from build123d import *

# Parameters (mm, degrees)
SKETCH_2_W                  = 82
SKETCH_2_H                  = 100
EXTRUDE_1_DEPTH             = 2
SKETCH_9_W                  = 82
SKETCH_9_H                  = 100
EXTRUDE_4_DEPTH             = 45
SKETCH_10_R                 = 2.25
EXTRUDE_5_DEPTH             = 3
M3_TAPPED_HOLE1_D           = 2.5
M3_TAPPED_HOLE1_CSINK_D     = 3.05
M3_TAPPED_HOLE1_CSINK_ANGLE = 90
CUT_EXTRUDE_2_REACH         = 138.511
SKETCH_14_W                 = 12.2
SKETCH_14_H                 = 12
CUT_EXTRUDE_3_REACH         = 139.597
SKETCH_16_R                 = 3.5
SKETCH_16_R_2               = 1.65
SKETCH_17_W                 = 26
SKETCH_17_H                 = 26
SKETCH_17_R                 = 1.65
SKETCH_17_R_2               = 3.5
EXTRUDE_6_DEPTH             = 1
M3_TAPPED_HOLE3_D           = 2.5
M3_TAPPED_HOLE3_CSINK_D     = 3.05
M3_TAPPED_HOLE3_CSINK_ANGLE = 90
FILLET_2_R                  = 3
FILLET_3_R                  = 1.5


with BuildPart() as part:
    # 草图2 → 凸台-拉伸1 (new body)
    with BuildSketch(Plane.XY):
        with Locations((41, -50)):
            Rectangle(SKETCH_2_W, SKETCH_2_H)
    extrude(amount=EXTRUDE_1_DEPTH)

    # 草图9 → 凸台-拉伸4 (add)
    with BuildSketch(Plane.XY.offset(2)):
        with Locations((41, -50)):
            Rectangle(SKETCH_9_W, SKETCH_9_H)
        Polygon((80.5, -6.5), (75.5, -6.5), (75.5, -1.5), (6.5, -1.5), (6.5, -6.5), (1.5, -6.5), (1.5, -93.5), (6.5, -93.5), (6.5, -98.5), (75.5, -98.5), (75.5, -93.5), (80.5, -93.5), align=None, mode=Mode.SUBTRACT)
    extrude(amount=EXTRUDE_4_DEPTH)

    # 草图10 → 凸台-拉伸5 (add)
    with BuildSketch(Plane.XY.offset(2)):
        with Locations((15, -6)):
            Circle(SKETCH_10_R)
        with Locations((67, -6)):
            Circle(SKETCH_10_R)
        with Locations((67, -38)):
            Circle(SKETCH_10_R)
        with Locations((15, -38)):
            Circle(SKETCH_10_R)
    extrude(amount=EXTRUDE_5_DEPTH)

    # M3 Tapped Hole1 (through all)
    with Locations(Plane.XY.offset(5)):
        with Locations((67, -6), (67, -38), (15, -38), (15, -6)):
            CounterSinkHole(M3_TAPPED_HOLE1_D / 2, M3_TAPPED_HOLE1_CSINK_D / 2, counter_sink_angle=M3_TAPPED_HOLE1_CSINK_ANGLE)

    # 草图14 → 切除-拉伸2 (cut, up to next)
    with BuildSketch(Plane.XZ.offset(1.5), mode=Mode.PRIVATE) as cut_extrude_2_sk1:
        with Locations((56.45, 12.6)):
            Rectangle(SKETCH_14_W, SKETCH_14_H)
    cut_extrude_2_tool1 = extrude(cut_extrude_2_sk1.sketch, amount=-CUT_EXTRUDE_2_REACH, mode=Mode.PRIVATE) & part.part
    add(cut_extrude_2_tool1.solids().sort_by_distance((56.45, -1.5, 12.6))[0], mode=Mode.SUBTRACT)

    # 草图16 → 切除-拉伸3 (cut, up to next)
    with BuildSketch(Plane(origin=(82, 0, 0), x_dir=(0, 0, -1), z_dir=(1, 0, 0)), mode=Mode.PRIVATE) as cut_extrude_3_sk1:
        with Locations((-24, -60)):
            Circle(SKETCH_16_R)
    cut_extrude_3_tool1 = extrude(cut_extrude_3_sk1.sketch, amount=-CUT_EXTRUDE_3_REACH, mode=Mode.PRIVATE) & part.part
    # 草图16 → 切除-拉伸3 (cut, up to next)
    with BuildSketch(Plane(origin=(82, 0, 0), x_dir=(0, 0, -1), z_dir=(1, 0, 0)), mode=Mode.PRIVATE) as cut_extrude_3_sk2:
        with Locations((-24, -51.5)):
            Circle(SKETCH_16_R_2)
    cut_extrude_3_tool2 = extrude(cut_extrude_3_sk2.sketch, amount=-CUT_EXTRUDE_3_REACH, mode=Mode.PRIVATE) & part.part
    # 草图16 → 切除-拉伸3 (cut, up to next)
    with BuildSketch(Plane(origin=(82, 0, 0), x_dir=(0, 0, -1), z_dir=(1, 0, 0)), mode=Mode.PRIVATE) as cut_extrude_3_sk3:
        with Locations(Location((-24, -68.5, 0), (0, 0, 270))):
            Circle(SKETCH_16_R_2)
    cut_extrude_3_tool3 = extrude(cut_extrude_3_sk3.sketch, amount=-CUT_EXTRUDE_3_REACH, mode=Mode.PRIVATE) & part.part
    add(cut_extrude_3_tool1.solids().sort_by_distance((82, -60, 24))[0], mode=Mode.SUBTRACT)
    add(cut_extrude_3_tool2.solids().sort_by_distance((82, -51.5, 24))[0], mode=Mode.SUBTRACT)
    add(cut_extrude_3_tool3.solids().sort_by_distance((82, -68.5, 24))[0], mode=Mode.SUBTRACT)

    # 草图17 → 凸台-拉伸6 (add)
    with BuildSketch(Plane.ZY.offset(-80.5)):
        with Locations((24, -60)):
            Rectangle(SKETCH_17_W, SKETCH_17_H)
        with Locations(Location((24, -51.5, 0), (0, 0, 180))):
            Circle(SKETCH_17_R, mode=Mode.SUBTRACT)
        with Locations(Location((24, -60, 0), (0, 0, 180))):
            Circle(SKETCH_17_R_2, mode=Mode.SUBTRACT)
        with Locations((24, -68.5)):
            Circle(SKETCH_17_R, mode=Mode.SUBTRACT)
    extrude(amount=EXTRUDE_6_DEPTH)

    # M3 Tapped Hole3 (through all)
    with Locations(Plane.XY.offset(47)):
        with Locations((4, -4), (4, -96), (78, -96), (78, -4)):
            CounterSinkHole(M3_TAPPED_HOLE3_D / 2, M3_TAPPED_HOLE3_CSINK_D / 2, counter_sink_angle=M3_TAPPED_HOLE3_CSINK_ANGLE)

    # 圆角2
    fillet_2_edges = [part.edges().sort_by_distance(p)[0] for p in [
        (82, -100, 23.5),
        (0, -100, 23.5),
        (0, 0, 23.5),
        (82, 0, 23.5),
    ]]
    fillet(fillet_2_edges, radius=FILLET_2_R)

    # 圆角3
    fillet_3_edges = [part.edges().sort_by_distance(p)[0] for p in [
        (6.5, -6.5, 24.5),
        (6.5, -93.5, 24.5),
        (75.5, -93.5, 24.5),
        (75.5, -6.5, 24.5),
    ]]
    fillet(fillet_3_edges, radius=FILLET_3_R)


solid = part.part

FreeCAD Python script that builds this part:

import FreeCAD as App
import Part
import Sketcher


def edges_at(feature, points):
    """Names of the edges that pass closest to the given points."""
    edges = feature.Shape.Edges
    near = lambda p: min(range(len(edges)), key=lambda i: edges[i].distToShape(Part.Vertex(*p))[0])
    return sorted({f"Edge{near(p) + 1}" for p in points})

doc = App.newDocument("Part")
body = doc.addObject("PartDesign::Body", "Body")

sketch1 = doc.addObject("Sketcher::SketchObject", "Sketch")
body.addObject(sketch1)
sketch1.AttachmentSupport = (doc.XY_Plane, [""])
sketch1.MapMode = "FlatFace"
sketch1.addGeometry(Part.LineSegment(App.Vector(0, 0, 0), App.Vector(0, -100, 0)), False)
sketch1.addGeometry(Part.LineSegment(App.Vector(0, -100, 0), App.Vector(82, -100, 0)), False)
sketch1.addGeometry(Part.LineSegment(App.Vector(82, -100, 0), App.Vector(82, 0, 0)), False)
sketch1.addGeometry(Part.LineSegment(App.Vector(82, 0, 0), App.Vector(0, 0, 0)), False)
sketch1.addConstraint(Sketcher.Constraint("Coincident", 0, 2, 1, 1))
sketch1.addConstraint(Sketcher.Constraint("Coincident", 1, 2, 2, 1))
sketch1.addConstraint(Sketcher.Constraint("Coincident", 2, 2, 3, 1))
sketch1.addConstraint(Sketcher.Constraint("Coincident", 3, 2, 0, 1))
sketch1.addConstraint(Sketcher.Constraint("Vertical", 0))
sketch1.addConstraint(Sketcher.Constraint("Horizontal", 1))
sketch1.addConstraint(Sketcher.Constraint("Vertical", 2))
sketch1.addConstraint(Sketcher.Constraint("Horizontal", 3))
sketch1.addConstraint(Sketcher.Constraint("Coincident", 3, 2, -1, 1))
sketch1.addConstraint(Sketcher.Constraint("DistanceX", 1, 1, 1, 2, 82.0))
sketch1.addConstraint(Sketcher.Constraint("DistanceY", 0, 2, 0, 1, 100.0))
pad1 = doc.addObject("PartDesign::Pad", "Pad")
body.addObject(pad1)
pad1.Profile = sketch1
pad1.Length = 2

sketch2 = doc.addObject("Sketcher::SketchObject", "Sketch001")
body.addObject(sketch2)
sketch2.AttachmentSupport = (doc.XY_Plane, [""])
sketch2.MapMode = "FlatFace"
sketch2.AttachmentOffset = App.Placement(App.Vector(0, 0, 2), App.Rotation())
sketch2.addGeometry(Part.LineSegment(App.Vector(0, 0, 0), App.Vector(0, -100, 0)), False)
sketch2.addGeometry(Part.LineSegment(App.Vector(0, -100, 0), App.Vector(82, -100, 0)), False)
sketch2.addGeometry(Part.LineSegment(App.Vector(82, -100, 0), App.Vector(82, 0, 0)), False)
sketch2.addGeometry(Part.LineSegment(App.Vector(82, 0, 0), App.Vector(0, 0, 0)), False)
sketch2.addGeometry(Part.LineSegment(App.Vector(75.5, -6.5, 0), App.Vector(80.5, -6.5, 0)), False)
sketch2.addGeometry(Part.LineSegment(App.Vector(80.5, -6.5, 0), App.Vector(80.5, -93.5, 0)), False)
sketch2.addGeometry(Part.LineSegment(App.Vector(80.5, -93.5, 0), App.Vector(75.5, -93.5, 0)), False)
sketch2.addGeometry(Part.LineSegment(App.Vector(75.5, -93.5, 0), App.Vector(75.5, -98.5, 0)), False)
sketch2.addGeometry(Part.LineSegment(App.Vector(75.5, -98.5, 0), App.Vector(6.5, -98.5, 0)), False)
sketch2.addGeometry(Part.LineSegment(App.Vector(6.5, -98.5, 0), App.Vector(6.5, -93.5, 0)), False)
sketch2.addGeometry(Part.LineSegment(App.Vector(6.5, -93.5, 0), App.Vector(1.5, -93.5, 0)), False)
sketch2.addGeometry(Part.LineSegment(App.Vector(1.5, -93.5, 0), App.Vector(1.5, -6.5, 0)), False)
sketch2.addGeometry(Part.LineSegment(App.Vector(1.5, -6.5, 0), App.Vector(6.5, -6.5, 0)), False)
sketch2.addGeometry(Part.LineSegment(App.Vector(6.5, -6.5, 0), App.Vector(6.5, -1.5, 0)), False)
sketch2.addGeometry(Part.LineSegment(App.Vector(6.5, -1.5, 0), App.Vector(75.5, -1.5, 0)), False)
sketch2.addGeometry(Part.LineSegment(App.Vector(75.5, -1.5, 0), App.Vector(75.5, -6.5, 0)), False)
sketch2.addConstraint(Sketcher.Constraint("Coincident", 0, 2, 1, 1))
sketch2.addConstraint(Sketcher.Constraint("Coincident", 1, 2, 2, 1))
sketch2.addConstraint(Sketcher.Constraint("Coincident", 2, 2, 3, 1))
sketch2.addConstraint(Sketcher.Constraint("Coincident", 3, 2, 0, 1))
sketch2.addConstraint(Sketcher.Constraint("Coincident", 4, 2, 5, 1))
sketch2.addConstraint(Sketcher.Constraint("Coincident", 5, 2, 6, 1))
sketch2.addConstraint(Sketcher.Constraint("Coincident", 6, 2, 7, 1))
sketch2.addConstraint(Sketcher.Constraint("Coincident", 7, 2, 8, 1))
sketch2.addConstraint(Sketcher.Constraint("Coincident", 8, 2, 9, 1))
sketch2.addConstraint(Sketcher.Constraint("Coincident", 9, 2, 10, 1))
sketch2.addConstraint(Sketcher.Constraint("Coincident", 10, 2, 11, 1))
sketch2.addConstraint(Sketcher.Constraint("Coincident", 11, 2, 12, 1))
sketch2.addConstraint(Sketcher.Constraint("Coincident", 12, 2, 13, 1))
sketch2.addConstraint(Sketcher.Constraint("Coincident", 13, 2, 14, 1))
sketch2.addConstraint(Sketcher.Constraint("Coincident", 14, 2, 15, 1))
sketch2.addConstraint(Sketcher.Constraint("Coincident", 15, 2, 4, 1))
sketch2.addConstraint(Sketcher.Constraint("Vertical", 0))
sketch2.addConstraint(Sketcher.Constraint("Horizontal", 1))
sketch2.addConstraint(Sketcher.Constraint("Vertical", 2))
sketch2.addConstraint(Sketcher.Constraint("Horizontal", 3))
sketch2.addConstraint(Sketcher.Constraint("Horizontal", 4))
sketch2.addConstraint(Sketcher.Constraint("Vertical", 5))
sketch2.addConstraint(Sketcher.Constraint("Horizontal", 6))
sketch2.addConstraint(Sketcher.Constraint("Vertical", 7))
sketch2.addConstraint(Sketcher.Constraint("Horizontal", 8))
sketch2.addConstraint(Sketcher.Constraint("Vertical", 9))
sketch2.addConstraint(Sketcher.Constraint("Horizontal", 10))
sketch2.addConstraint(Sketcher.Constraint("Vertical", 11))
sketch2.addConstraint(Sketcher.Constraint("Horizontal", 12))
sketch2.addConstraint(Sketcher.Constraint("Vertical", 13))
sketch2.addConstraint(Sketcher.Constraint("Horizontal", 14))
sketch2.addConstraint(Sketcher.Constraint("Vertical", 15))
sketch2.addConstraint(Sketcher.Constraint("Coincident", 3, 2, -1, 1))
sketch2.addConstraint(Sketcher.Constraint("Horizontal", 6, 2, 9, 2))
sketch2.addConstraint(Sketcher.Constraint("Horizontal", 4, 2, 11, 2))
sketch2.addConstraint(Sketcher.Constraint("Vertical", 9, 2, 12, 2))
sketch2.addConstraint(Sketcher.Constraint("Vertical", 7, 2, 14, 2))
sketch2.addConstraint(Sketcher.Constraint("Equal", 6, 10))
sketch2.addConstraint(Sketcher.Constraint("Equal", 12, 7))
sketch2.addConstraint(Sketcher.Constraint("Equal", 9, 13))
sketch2.addConstraint(Sketcher.Constraint("DistanceX", 1, 1, 1, 2, 82.0))
sketch2.addConstraint(Sketcher.Constraint("DistanceX", 4, 1, 4, 2, 5.0))
sketch2.addConstraint(Sketcher.Constraint("DistanceX", 8, 2, 8, 1, 69.0))
sketch2.addConstraint(Sketcher.Constraint("DistanceY", 0, 2, 0, 1, 100.0))
sketch2.addConstraint(Sketcher.Constraint("DistanceY", 5, 2, 5, 1, 87.0))
sketch2.addConstraint(Sketcher.Constraint("DistanceX", -1, 1, 4, 2, 80.5))
sketch2.addConstraint(Sketcher.Constraint("DistanceY", 4, 2, -1, 1, 6.5))
pad2 = doc.addObject("PartDesign::Pad", "Pad001")
body.addObject(pad2)
pad2.Profile = sketch2
pad2.Length = 45

sketch3 = doc.addObject("Sketcher::SketchObject", "Sketch002")
body.addObject(sketch3)
sketch3.AttachmentSupport = (doc.XY_Plane, [""])
sketch3.MapMode = "FlatFace"
sketch3.AttachmentOffset = App.Placement(App.Vector(0, 0, 2), App.Rotation())
sketch3.addGeometry(Part.Circle(App.Vector(15, -6, 0), App.Vector(0, 0, 1), 2.25), False)
sketch3.addGeometry(Part.Circle(App.Vector(67, -6, 0), App.Vector(0, 0, 1), 2.25), False)
sketch3.addGeometry(Part.Circle(App.Vector(67, -38, 0), App.Vector(0, 0, 1), 2.25), False)
sketch3.addGeometry(Part.Circle(App.Vector(15, -38, 0), App.Vector(0, 0, 1), 2.25), False)
sketch3.addConstraint(Sketcher.Constraint("Equal", 0, 1))
sketch3.addConstraint(Sketcher.Constraint("Equal", 1, 2))
sketch3.addConstraint(Sketcher.Constraint("Equal", 2, 3))
sketch3.addConstraint(Sketcher.Constraint("Horizontal", 0, 3, 1, 3))
sketch3.addConstraint(Sketcher.Constraint("Horizontal", 2, 3, 3, 3))
sketch3.addConstraint(Sketcher.Constraint("Vertical", 1, 3, 2, 3))
sketch3.addConstraint(Sketcher.Constraint("Vertical", 0, 3, 3, 3))
sketch3.addConstraint(Sketcher.Constraint("Diameter", 0, 4.5))
sketch3.addConstraint(Sketcher.Constraint("DistanceX", -1, 1, 0, 3, 15.0))
sketch3.addConstraint(Sketcher.Constraint("DistanceY", 0, 3, -1, 1, 6.0))
sketch3.addConstraint(Sketcher.Constraint("DistanceX", -1, 1, 1, 3, 67.0))
sketch3.addConstraint(Sketcher.Constraint("DistanceY", 2, 3, -1, 1, 38.0))
pad3 = doc.addObject("PartDesign::Pad", "Pad002")
body.addObject(pad3)
pad3.Profile = sketch3
pad3.Length = 3

sketch4 = doc.addObject("Sketcher::SketchObject", "Sketch003")
body.addObject(sketch4)
sketch4.AttachmentSupport = (doc.XY_Plane, [""])
sketch4.MapMode = "FlatFace"
sketch4.AttachmentOffset = App.Placement(App.Vector(0, 0, 5), App.Rotation())
sketch4.addGeometry(Part.Circle(App.Vector(67, -6, 0), App.Vector(0, 0, 1), 1.25), False)
sketch4.addGeometry(Part.Circle(App.Vector(67, -38, 0), App.Vector(0, 0, 1), 1.25), False)
sketch4.addGeometry(Part.Circle(App.Vector(15, -38, 0), App.Vector(0, 0, 1), 1.25), False)
sketch4.addGeometry(Part.Circle(App.Vector(15, -6, 0), App.Vector(0, 0, 1), 1.25), False)
sketch4.addConstraint(Sketcher.Constraint("Equal", 0, 1))
sketch4.addConstraint(Sketcher.Constraint("Equal", 1, 2))
sketch4.addConstraint(Sketcher.Constraint("Equal", 2, 3))
sketch4.addConstraint(Sketcher.Constraint("Horizontal", 1, 3, 2, 3))
sketch4.addConstraint(Sketcher.Constraint("Horizontal", 0, 3, 3, 3))
sketch4.addConstraint(Sketcher.Constraint("Vertical", 0, 3, 1, 3))
sketch4.addConstraint(Sketcher.Constraint("Vertical", 2, 3, 3, 3))
sketch4.addConstraint(Sketcher.Constraint("Diameter", 0, 2.5))
sketch4.addConstraint(Sketcher.Constraint("DistanceX", -1, 1, 0, 3, 67.0))
sketch4.addConstraint(Sketcher.Constraint("DistanceY", 0, 3, -1, 1, 6.0))
sketch4.addConstraint(Sketcher.Constraint("DistanceY", 1, 3, -1, 1, 38.0))
sketch4.addConstraint(Sketcher.Constraint("DistanceX", -1, 1, 2, 3, 15.0))
doc.recompute()
hole = doc.addObject("PartDesign::Hole", "Hole")
body.addObject(hole)
hole.Profile = sketch4
hole.ThreadType = "None"
hole.Diameter = 2.5
hole.DepthType = "ThroughAll"
hole.HoleCutType = "Countersink"
hole.HoleCutDiameter = 3.05
hole.HoleCutCountersinkAngle = 90

sketch5 = doc.addObject("Sketcher::SketchObject", "Sketch004")
body.addObject(sketch5)
sketch5.AttachmentSupport = (doc.XZ_Plane, [""])
sketch5.MapMode = "FlatFace"
sketch5.AttachmentOffset = App.Placement(App.Vector(0, 0, 1.5), App.Rotation())
sketch5.addGeometry(Part.LineSegment(App.Vector(50.35, 18.6, 0), App.Vector(50.35, 6.6, 0)), False)
sketch5.addGeometry(Part.LineSegment(App.Vector(50.35, 6.6, 0), App.Vector(62.55, 6.6, 0)), False)
sketch5.addGeometry(Part.LineSegment(App.Vector(62.55, 6.6, 0), App.Vector(62.55, 18.6, 0)), False)
sketch5.addGeometry(Part.LineSegment(App.Vector(62.55, 18.6, 0), App.Vector(50.35, 18.6, 0)), False)
sketch5.addConstraint(Sketcher.Constraint("Coincident", 0, 2, 1, 1))
sketch5.addConstraint(Sketcher.Constraint("Coincident", 1, 2, 2, 1))
sketch5.addConstraint(Sketcher.Constraint("Coincident", 2, 2, 3, 1))
sketch5.addConstraint(Sketcher.Constraint("Coincident", 3, 2, 0, 1))
sketch5.addConstraint(Sketcher.Constraint("Vertical", 0))
sketch5.addConstraint(Sketcher.Constraint("Horizontal", 1))
sketch5.addConstraint(Sketcher.Constraint("Vertical", 2))
sketch5.addConstraint(Sketcher.Constraint("Horizontal", 3))
sketch5.addConstraint(Sketcher.Constraint("DistanceY", 0, 2, 0, 1, 12.0))
sketch5.addConstraint(Sketcher.Constraint("DistanceX", 1, 1, 1, 2, 12.2))
sketch5.addConstraint(Sketcher.Constraint("DistanceY", -1, 1, 0, 2, 6.6))
sketch5.addConstraint(Sketcher.Constraint("DistanceX", -1, 1, 0, 2, 50.35))
pocket1 = doc.addObject("PartDesign::Pocket", "Pocket")
body.addObject(pocket1)
pocket1.Profile = sketch5
pocket1.Type = "UpToFirst"

sketch6 = doc.addObject("Sketcher::SketchObject", "Sketch005")
body.addObject(sketch6)
sketch6.AttachmentSupport = (doc.YZ_Plane, [""])
sketch6.MapMode = "FlatFace"
sketch6.AttachmentOffset = App.Placement(App.Vector(0, 0, 82), App.Rotation())
sketch6.addGeometry(Part.Circle(App.Vector(-60, 24, 0), App.Vector(0, 0, 1), 3.5), False)
sketch6.addConstraint(Sketcher.Constraint("Diameter", 0, 7.0))
sketch6.addConstraint(Sketcher.Constraint("DistanceX", 0, 3, -1, 1, 60.0))
sketch6.addConstraint(Sketcher.Constraint("DistanceY", -1, 1, 0, 3, 24.0))
pocket2 = doc.addObject("PartDesign::Pocket", "Pocket001")
body.addObject(pocket2)
pocket2.Profile = sketch6
pocket2.Type = "UpToFirst"

sketch7 = doc.addObject("Sketcher::SketchObject", "Sketch006")
body.addObject(sketch7)
sketch7.AttachmentSupport = (doc.YZ_Plane, [""])
sketch7.MapMode = "FlatFace"
sketch7.AttachmentOffset = App.Placement(App.Vector(0, 0, 82), App.Rotation())
sketch7.addGeometry(Part.Circle(App.Vector(-51.5, 24, 0), App.Vector(0, 0, 1), 1.65), False)
sketch7.addConstraint(Sketcher.Constraint("Diameter", 0, 3.3))
sketch7.addConstraint(Sketcher.Constraint("DistanceY", -1, 1, 0, 3, 24.0))
sketch7.addConstraint(Sketcher.Constraint("DistanceX", 0, 3, -1, 1, 51.5))
pocket3 = doc.addObject("PartDesign::Pocket", "Pocket002")
body.addObject(pocket3)
pocket3.Profile = sketch7
pocket3.Type = "UpToFirst"

sketch8 = doc.addObject("Sketcher::SketchObject", "Sketch007")
body.addObject(sketch8)
sketch8.AttachmentSupport = (doc.YZ_Plane, [""])
sketch8.MapMode = "FlatFace"
sketch8.AttachmentOffset = App.Placement(App.Vector(0, 0, 82), App.Rotation())
sketch8.addGeometry(Part.Circle(App.Vector(-68.5, 24, 0), App.Vector(0, 0, 1), 1.65), False)
sketch8.addConstraint(Sketcher.Constraint("Diameter", 0, 3.3))
sketch8.addConstraint(Sketcher.Constraint("DistanceY", -1, 1, 0, 3, 24.0))
sketch8.addConstraint(Sketcher.Constraint("DistanceX", 0, 3, -1, 1, 68.5))
pocket4 = doc.addObject("PartDesign::Pocket", "Pocket003")
body.addObject(pocket4)
pocket4.Profile = sketch8
pocket4.Type = "UpToFirst"

sketch9 = doc.addObject("Sketcher::SketchObject", "Sketch008")
body.addObject(sketch9)
sketch9.AttachmentSupport = (doc.YZ_Plane, [""])
sketch9.MapMode = "FlatFace"
sketch9.AttachmentOffset = App.Placement(App.Vector(0, 0, 80.5), App.Rotation())
sketch9.addGeometry(Part.LineSegment(App.Vector(-47, 11, 0), App.Vector(-73, 11, 0)), False)
sketch9.addGeometry(Part.LineSegment(App.Vector(-73, 11, 0), App.Vector(-73, 37, 0)), False)
sketch9.addGeometry(Part.LineSegment(App.Vector(-73, 37, 0), App.Vector(-47, 37, 0)), False)
sketch9.addGeometry(Part.LineSegment(App.Vector(-47, 37, 0), App.Vector(-47, 11, 0)), False)
sketch9.addGeometry(Part.Circle(App.Vector(-68.5, 24, 0), App.Vector(0, 0, 1), 1.65), False)
sketch9.addGeometry(Part.Circle(App.Vector(-60, 24, 0), App.Vector(0, 0, 1), 3.5), False)
sketch9.addGeometry(Part.Circle(App.Vector(-51.5, 24, 0), App.Vector(0, 0, 1), 1.65), False)
sketch9.addConstraint(Sketcher.Constraint("Coincident", 0, 2, 1, 1))
sketch9.addConstraint(Sketcher.Constraint("Coincident", 1, 2, 2, 1))
sketch9.addConstraint(Sketcher.Constraint("Coincident", 2, 2, 3, 1))
sketch9.addConstraint(Sketcher.Constraint("Coincident", 3, 2, 0, 1))
sketch9.addConstraint(Sketcher.Constraint("Horizontal", 0))
sketch9.addConstraint(Sketcher.Constraint("Vertical", 1))
sketch9.addConstraint(Sketcher.Constraint("Horizontal", 2))
sketch9.addConstraint(Sketcher.Constraint("Vertical", 3))
sketch9.addConstraint(Sketcher.Constraint("Equal", 4, 6))
sketch9.addConstraint(Sketcher.Constraint("Horizontal", 4, 3, 5, 3))
sketch9.addConstraint(Sketcher.Constraint("Horizontal", 5, 3, 6, 3))
sketch9.addConstraint(Sketcher.Constraint("Equal", 2, 1))
sketch9.addConstraint(Sketcher.Constraint("Diameter", 5, 7.0))
sketch9.addConstraint(Sketcher.Constraint("Diameter", 4, 3.3))
sketch9.addConstraint(Sketcher.Constraint("DistanceX", 0, 2, 0, 1, 26.0))
sketch9.addConstraint(Sketcher.Constraint("DistanceY", -1, 1, 4, 3, 24.0))
sketch9.addConstraint(Sketcher.Constraint("DistanceX", 5, 3, -1, 1, 60.0))
sketch9.addConstraint(Sketcher.Constraint("DistanceX", 0, 2, -1, 1, 73.0))
sketch9.addConstraint(Sketcher.Constraint("DistanceY", -1, 1, 0, 2, 11.0))
sketch9.addConstraint(Sketcher.Constraint("DistanceX", 4, 3, 6, 3, 17.0))
sketch9.addConstraint(Sketcher.Constraint("DistanceX", 4, 3, -1, 1, 68.5))
pad4 = doc.addObject("PartDesign::Pad", "Pad003")
body.addObject(pad4)
pad4.Profile = sketch9
pad4.Length = 1
pad4.Reversed = True

sketch10 = doc.addObject("Sketcher::SketchObject", "Sketch009")
body.addObject(sketch10)
sketch10.AttachmentSupport = (doc.XY_Plane, [""])
sketch10.MapMode = "FlatFace"
sketch10.AttachmentOffset = App.Placement(App.Vector(0, 0, 47), App.Rotation())
sketch10.addGeometry(Part.Circle(App.Vector(4, -4, 0), App.Vector(0, 0, 1), 1.25), False)
sketch10.addGeometry(Part.Circle(App.Vector(4, -96, 0), App.Vector(0, 0, 1), 1.25), False)
sketch10.addGeometry(Part.Circle(App.Vector(78, -96, 0), App.Vector(0, 0, 1), 1.25), False)
sketch10.addGeometry(Part.Circle(App.Vector(78, -4, 0), App.Vector(0, 0, 1), 1.25), False)
sketch10.addConstraint(Sketcher.Constraint("Equal", 0, 1))
sketch10.addConstraint(Sketcher.Constraint("Equal", 1, 2))
sketch10.addConstraint(Sketcher.Constraint("Equal", 2, 3))
sketch10.addConstraint(Sketcher.Constraint("Horizontal", 1, 3, 2, 3))
sketch10.addConstraint(Sketcher.Constraint("Horizontal", 0, 3, 3, 3))
sketch10.addConstraint(Sketcher.Constraint("Vertical", 0, 3, 1, 3))
sketch10.addConstraint(Sketcher.Constraint("Vertical", 2, 3, 3, 3))
sketch10.addConstraint(Sketcher.Constraint("Diameter", 0, 2.5))
sketch10.addConstraint(Sketcher.Constraint("DistanceX", -1, 1, 0, 3, 4.0))
sketch10.addConstraint(Sketcher.Constraint("DistanceY", 0, 3, -1, 1, 4.0))
sketch10.addConstraint(Sketcher.Constraint("DistanceY", 1, 3, -1, 1, 96.0))
sketch10.addConstraint(Sketcher.Constraint("DistanceX", -1, 1, 2, 3, 78.0))
doc.recompute()
hole2 = doc.addObject("PartDesign::Hole", "Hole001")
body.addObject(hole2)
hole2.Profile = sketch10
hole2.ThreadType = "None"
hole2.Diameter = 2.5
hole2.DepthType = "ThroughAll"
hole2.HoleCutType = "Countersink"
hole2.HoleCutDiameter = 3.05
hole2.HoleCutCountersinkAngle = 90
doc.recompute()

fillet = doc.addObject("PartDesign::Fillet", "Fillet")
body.addObject(fillet)
fillet.Base = (hole2, edges_at(hole2, [
    (82, -100, 23.5),
    (0, -100, 23.5),
    (0, 0, 23.5),
    (82, 0, 23.5),
]))
fillet.Radius = 3
doc.recompute()

fillet2 = doc.addObject("PartDesign::Fillet", "Fillet001")
body.addObject(fillet2)
fillet2.Base = (fillet, edges_at(fillet, [
    (6.5, -6.5, 24.5),
    (6.5, -93.5, 24.5),
    (75.5, -93.5, 24.5),
    (75.5, -6.5, 24.5),
]))
fillet2.Radius = 1.5

doc.recompute()
